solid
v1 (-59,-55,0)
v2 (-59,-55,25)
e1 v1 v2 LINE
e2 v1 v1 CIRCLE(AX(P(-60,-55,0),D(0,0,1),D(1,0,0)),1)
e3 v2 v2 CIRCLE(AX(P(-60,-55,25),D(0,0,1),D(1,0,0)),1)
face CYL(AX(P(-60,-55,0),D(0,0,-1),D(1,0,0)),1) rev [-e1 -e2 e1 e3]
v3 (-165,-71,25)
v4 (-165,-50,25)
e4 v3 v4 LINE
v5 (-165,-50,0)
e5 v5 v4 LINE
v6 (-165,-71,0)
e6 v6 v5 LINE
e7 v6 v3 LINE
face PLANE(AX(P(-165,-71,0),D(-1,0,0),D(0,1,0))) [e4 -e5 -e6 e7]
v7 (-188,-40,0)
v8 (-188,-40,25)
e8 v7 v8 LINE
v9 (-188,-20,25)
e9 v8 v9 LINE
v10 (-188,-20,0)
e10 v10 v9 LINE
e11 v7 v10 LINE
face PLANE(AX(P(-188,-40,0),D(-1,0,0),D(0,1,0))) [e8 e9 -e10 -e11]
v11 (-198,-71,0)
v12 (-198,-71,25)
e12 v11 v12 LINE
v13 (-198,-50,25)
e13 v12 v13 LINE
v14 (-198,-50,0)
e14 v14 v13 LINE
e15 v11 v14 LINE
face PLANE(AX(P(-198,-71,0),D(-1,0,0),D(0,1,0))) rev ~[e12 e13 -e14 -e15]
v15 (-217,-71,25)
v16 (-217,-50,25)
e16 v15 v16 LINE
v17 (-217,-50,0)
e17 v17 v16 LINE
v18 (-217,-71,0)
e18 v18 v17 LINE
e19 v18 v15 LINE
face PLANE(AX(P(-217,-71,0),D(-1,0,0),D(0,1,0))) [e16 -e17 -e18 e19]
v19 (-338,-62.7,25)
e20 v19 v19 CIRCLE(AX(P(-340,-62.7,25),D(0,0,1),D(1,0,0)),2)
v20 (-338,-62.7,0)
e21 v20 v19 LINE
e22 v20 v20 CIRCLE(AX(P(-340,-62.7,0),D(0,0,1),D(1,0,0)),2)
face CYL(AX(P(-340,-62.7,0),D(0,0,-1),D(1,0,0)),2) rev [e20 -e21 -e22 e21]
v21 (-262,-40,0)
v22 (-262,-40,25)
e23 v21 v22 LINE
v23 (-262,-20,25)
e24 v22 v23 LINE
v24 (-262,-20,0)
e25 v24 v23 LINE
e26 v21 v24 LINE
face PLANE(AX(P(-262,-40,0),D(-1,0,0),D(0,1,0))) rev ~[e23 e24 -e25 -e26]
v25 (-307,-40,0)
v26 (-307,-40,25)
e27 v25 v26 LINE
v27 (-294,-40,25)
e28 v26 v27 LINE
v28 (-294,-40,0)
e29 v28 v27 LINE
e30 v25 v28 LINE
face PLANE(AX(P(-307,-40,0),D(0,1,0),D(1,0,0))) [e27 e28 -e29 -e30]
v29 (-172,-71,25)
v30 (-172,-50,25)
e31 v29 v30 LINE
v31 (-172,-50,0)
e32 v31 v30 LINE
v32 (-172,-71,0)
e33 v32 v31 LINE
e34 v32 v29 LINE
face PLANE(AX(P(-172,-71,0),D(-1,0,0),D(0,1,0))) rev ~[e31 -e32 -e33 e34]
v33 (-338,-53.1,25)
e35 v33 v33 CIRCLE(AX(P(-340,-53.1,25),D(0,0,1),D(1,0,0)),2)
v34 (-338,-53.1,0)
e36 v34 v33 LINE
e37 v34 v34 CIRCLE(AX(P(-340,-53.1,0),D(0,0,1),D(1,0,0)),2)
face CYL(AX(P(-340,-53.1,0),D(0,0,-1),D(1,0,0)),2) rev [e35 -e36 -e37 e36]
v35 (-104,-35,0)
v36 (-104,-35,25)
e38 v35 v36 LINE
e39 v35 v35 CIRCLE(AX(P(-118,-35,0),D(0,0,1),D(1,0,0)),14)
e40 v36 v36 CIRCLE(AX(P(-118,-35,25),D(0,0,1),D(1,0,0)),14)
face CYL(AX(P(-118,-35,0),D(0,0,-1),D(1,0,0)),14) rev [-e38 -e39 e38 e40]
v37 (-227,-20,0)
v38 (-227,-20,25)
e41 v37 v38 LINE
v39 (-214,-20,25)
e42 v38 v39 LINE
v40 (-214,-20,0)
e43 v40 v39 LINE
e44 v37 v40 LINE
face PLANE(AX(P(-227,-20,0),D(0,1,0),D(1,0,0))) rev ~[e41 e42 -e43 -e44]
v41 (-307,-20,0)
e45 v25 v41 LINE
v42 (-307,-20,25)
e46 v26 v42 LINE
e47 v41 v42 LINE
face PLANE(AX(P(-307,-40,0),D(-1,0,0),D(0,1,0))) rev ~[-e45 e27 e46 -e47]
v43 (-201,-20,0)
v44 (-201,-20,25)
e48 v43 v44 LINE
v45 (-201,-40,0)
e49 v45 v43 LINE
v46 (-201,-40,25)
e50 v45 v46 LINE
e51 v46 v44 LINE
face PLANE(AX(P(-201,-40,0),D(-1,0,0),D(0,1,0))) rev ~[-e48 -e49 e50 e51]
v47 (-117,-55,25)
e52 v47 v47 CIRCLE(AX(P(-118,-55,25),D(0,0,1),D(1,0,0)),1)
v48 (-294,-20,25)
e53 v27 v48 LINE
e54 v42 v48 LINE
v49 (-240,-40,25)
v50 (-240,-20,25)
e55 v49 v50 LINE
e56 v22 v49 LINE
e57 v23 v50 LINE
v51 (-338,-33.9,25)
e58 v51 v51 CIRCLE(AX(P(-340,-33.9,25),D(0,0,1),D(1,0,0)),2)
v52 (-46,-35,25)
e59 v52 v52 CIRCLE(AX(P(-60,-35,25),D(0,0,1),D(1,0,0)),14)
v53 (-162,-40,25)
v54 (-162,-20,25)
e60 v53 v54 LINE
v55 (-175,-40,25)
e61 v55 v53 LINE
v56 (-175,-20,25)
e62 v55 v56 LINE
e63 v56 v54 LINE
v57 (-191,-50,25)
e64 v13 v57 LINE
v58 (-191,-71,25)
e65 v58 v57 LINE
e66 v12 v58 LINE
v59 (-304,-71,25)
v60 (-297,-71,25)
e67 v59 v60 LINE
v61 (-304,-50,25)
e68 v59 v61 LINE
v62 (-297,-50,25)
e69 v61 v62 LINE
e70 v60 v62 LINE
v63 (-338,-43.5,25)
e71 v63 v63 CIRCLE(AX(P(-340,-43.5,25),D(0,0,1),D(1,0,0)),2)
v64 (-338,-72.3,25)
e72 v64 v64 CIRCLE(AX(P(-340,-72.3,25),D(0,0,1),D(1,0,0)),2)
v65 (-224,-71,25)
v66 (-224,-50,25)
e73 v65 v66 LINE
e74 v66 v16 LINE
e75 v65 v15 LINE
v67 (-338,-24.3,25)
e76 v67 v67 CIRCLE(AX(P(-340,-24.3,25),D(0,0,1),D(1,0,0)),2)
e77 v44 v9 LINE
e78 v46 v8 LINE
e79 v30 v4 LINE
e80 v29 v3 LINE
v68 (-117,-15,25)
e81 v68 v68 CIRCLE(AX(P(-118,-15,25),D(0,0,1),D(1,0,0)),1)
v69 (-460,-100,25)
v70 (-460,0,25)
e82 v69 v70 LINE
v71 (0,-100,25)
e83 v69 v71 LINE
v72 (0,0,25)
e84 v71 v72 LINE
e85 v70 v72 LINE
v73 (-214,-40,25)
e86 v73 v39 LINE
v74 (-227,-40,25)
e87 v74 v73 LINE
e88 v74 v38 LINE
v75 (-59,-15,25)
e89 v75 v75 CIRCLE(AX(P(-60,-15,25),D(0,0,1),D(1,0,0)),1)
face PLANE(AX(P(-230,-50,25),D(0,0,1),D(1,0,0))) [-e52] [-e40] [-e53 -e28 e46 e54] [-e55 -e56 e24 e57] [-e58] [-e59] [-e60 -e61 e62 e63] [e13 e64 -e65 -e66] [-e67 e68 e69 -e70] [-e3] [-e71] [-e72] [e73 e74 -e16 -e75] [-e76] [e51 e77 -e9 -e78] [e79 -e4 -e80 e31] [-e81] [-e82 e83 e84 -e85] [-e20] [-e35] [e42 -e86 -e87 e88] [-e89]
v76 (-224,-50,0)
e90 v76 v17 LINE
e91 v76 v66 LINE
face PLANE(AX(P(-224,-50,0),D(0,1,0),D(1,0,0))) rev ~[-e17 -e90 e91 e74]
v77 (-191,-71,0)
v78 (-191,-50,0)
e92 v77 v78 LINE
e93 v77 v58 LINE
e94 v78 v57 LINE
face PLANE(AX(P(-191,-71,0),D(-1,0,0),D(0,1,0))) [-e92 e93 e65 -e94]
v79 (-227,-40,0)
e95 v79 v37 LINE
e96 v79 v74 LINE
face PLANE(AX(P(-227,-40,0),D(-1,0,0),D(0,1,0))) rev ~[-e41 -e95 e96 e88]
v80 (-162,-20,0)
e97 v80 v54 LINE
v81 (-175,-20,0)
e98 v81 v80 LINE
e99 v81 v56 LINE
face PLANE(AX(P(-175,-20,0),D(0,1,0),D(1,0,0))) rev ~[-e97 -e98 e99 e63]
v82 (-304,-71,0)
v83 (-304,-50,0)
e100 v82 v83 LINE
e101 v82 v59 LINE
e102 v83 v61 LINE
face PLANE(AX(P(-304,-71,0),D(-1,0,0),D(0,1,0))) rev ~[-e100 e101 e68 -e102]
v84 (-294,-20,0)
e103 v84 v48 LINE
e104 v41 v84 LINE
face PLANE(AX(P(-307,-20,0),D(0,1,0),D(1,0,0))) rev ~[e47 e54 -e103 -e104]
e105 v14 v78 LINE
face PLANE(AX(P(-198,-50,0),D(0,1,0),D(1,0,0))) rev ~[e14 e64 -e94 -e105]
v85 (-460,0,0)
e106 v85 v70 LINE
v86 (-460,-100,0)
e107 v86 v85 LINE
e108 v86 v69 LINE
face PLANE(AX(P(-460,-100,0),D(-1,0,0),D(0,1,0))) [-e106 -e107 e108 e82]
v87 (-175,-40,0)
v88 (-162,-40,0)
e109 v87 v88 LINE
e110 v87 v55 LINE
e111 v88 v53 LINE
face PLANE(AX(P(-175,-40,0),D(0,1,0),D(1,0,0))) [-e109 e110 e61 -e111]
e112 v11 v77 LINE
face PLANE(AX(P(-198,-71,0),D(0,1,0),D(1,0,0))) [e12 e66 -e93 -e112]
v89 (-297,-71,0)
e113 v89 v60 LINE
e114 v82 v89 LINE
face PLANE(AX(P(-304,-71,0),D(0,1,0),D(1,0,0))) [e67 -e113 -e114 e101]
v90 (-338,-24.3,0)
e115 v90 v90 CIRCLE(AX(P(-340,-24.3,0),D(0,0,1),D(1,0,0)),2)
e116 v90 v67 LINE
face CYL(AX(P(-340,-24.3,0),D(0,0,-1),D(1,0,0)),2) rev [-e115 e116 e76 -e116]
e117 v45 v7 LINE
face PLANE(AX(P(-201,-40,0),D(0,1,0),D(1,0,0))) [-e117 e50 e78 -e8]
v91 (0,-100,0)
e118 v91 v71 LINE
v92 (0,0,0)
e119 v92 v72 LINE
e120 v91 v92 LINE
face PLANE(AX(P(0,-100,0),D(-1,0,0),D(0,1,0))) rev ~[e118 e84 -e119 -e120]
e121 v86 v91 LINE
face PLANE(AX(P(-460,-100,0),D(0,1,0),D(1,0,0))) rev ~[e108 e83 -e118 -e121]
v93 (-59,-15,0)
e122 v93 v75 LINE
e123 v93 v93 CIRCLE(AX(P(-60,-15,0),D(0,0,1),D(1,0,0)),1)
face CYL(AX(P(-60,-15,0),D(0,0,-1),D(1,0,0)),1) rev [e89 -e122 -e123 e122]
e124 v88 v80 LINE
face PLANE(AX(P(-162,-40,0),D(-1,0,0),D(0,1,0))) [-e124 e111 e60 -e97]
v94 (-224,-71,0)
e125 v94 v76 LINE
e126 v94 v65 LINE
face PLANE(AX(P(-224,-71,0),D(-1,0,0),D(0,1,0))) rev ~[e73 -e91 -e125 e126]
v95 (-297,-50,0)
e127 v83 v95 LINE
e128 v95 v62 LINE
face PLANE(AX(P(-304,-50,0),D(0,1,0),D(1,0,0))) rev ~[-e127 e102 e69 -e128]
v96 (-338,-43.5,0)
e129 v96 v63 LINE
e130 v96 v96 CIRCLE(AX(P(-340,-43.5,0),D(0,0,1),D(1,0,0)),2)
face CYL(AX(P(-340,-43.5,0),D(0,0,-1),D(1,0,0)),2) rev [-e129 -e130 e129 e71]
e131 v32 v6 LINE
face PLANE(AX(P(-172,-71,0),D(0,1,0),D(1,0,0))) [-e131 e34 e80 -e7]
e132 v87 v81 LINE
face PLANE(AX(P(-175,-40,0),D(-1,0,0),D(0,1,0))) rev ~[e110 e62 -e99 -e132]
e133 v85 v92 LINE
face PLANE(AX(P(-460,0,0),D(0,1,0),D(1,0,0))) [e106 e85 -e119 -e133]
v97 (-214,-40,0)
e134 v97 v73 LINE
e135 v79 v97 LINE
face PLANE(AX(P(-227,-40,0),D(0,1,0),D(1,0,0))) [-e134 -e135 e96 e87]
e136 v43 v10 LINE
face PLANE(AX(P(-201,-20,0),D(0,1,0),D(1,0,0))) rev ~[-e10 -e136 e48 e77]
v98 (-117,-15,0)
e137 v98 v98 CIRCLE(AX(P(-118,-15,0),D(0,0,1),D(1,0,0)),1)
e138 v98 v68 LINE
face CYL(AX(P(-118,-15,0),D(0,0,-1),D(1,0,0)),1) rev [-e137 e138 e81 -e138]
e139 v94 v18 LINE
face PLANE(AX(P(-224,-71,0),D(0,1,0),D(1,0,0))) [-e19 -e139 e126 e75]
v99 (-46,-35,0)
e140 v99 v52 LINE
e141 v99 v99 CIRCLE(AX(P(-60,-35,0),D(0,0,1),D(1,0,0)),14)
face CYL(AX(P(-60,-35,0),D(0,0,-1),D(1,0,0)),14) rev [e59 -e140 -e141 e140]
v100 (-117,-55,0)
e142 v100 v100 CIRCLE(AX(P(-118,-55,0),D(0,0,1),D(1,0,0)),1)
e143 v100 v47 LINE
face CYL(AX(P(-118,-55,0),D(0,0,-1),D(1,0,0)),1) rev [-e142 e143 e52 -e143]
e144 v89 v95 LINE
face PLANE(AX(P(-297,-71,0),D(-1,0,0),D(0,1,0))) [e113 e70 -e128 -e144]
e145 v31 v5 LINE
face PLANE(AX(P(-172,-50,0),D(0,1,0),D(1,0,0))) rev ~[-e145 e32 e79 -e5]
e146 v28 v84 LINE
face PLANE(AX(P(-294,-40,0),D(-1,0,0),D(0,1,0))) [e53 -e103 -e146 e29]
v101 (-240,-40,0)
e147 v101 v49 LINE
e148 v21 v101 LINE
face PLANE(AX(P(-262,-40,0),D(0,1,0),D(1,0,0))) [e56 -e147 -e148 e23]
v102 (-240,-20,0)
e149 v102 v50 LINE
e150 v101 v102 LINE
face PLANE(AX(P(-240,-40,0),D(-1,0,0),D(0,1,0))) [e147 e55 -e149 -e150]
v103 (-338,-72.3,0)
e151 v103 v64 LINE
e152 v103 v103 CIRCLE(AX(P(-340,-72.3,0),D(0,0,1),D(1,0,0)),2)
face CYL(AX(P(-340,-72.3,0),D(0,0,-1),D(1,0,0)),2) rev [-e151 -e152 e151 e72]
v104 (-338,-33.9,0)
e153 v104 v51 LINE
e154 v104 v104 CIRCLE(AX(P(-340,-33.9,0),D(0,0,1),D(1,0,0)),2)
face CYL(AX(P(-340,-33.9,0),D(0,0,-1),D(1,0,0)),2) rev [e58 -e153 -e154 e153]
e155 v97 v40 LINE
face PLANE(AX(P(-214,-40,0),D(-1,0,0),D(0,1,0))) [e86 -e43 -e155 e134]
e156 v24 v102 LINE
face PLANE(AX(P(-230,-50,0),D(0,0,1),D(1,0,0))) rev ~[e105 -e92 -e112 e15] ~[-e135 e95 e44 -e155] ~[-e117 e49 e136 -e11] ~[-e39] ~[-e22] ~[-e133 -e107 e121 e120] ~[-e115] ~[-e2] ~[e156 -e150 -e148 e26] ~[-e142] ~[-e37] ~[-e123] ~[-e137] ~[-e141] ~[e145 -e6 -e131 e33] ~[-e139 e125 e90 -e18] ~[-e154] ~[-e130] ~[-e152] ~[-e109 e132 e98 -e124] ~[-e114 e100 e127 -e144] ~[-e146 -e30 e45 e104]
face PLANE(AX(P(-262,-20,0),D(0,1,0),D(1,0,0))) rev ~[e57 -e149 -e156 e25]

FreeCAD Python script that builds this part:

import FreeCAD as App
import Part
import Sketcher
from FreeCAD import Vector
Q = App.Units.Quantity


def add_polygon(sketch, points):
    """Adds a closed chain of lines whose ends are joined by coincident constraints."""
    first, n = sketch.GeometryCount, len(points)
    for a, b in zip(points, points[1:] + points[:1]):
        sketch.addGeometry(Part.LineSegment(App.Vector(*a, 0), App.Vector(*b, 0)), False)
    for i in range(n):
        sketch.addConstraint(Sketcher.Constraint("Coincident", first + i, 2, first + (i + 1) % n, 1))

doc = App.newDocument("Part")
body = doc.addObject("PartDesign::Body", "Body")

# Sketch on XY plane
sketch1 = body.newObject("Sketcher::SketchObject", "Sketch")
sketch1.AttachmentSupport = (doc.getObject("XY_Plane"), [""])
sketch1.MapMode = "FlatFace"
add_polygon(sketch1, [(-460, 0), (-460, -100), (0, -100), (0, 0)])  # lines 0-3
sketch1.addGeometry(Part.Circle(Vector(-340, -72.3, 0), Vector(0, 0, 1), 2), False)  # 4
sketch1.addGeometry(Part.Circle(Vector(-340, -62.7, 0), Vector(0, 0, 1), 2), False)  # 5
add_polygon(sketch1, [(-297, -71), (-304, -71), (-304, -50), (-297, -50)])  # lines 6-9
add_polygon(sketch1, [(-217, -71), (-224, -71), (-224, -50), (-217, -50)])  # lines 10-13
add_polygon(sketch1, [(-191, -71), (-198, -71), (-198, -50), (-191, -50)])  # lines 14-17
sketch1.addGeometry(Part.Circle(Vector(-340, -53.1, 0), Vector(0, 0, 1), 2), False)  # 18
add_polygon(sketch1, [(-165, -71), (-172, -71), (-172, -50), (-165, -50)])  # lines 19-22
sketch1.addGeometry(Part.Circle(Vector(-118, -55, 0), Vector(0, 0, 1), 1), False)  # 23
sketch1.addGeometry(Part.Circle(Vector(-60, -55, 0), Vector(0, 0, 1), 1), False)  # 24
sketch1.addGeometry(Part.Circle(Vector(-340, -43.5, 0), Vector(0, 0, 1), 2), False)  # 25
sketch1.addGeometry(Part.Circle(Vector(-340, -33.9, 0), Vector(0, 0, 1), 2), False)  # 26
add_polygon(sketch1, [(-294, -40), (-307, -40), (-307, -20), (-294, -20)])  # lines 27-30
add_polygon(sketch1, [(-240, -40), (-262, -40), (-262, -20), (-240, -20)])  # lines 31-34
add_polygon(sketch1, [(-214, -40), (-227, -40), (-227, -20), (-214, -20)])  # lines 35-38
add_polygon(sketch1, [(-188, -40), (-201, -40), (-201, -20), (-188, -20)])  # lines 39-42
sketch1.addGeometry(Part.Circle(Vector(-340, -24.3, 0), Vector(0, 0, 1), 2), False)  # 43
add_polygon(sketch1, [(-162, -40), (-175, -40), (-175, -20), (-162, -20)])  # lines 44-47
sketch1.addGeometry(Part.Circle(Vector(-118, -35, 0), Vector(0, 0, 1), 14), False)  # 48
sketch1.addGeometry(Part.Circle(Vector(-60, -35, 0), Vector(0, 0, 1), 14), False)  # 49
sketch1.addGeometry(Part.Circle(Vector(-118, -15, 0), Vector(0, 0, 1), 1), False)  # 50
sketch1.addGeometry(Part.Circle(Vector(-60, -15, 0), Vector(0, 0, 1), 1), False)  # 51
sketch1.addConstraint(Sketcher.Constraint("Vertical", 0))
sketch1.addConstraint(Sketcher.Constraint("Horizontal", 1))
sketch1.addConstraint(Sketcher.Constraint("Vertical", 2))
sketch1.addConstraint(Sketcher.Constraint("Horizontal", 3))
sketch1.addConstraint(Sketcher.Constraint("Horizontal", 6))
sketch1.addConstraint(Sketcher.Constraint("Vertical", 7))
sketch1.addConstraint(Sketcher.Constraint("Horizontal", 8))
sketch1.addConstraint(Sketcher.Constraint("Vertical", 9))
sketch1.addConstraint(Sketcher.Constraint("Horizontal", 10))
sketch1.addConstraint(Sketcher.Constraint("Vertical", 11))
sketch1.addConstraint(Sketcher.Constraint("Horizontal", 12))
sketch1.addConstraint(Sketcher.Constraint("Vertical", 13))
sketch1.addConstraint(Sketcher.Constraint("Horizontal", 14))
sketch1.addConstraint(Sketcher.Constraint("Vertical", 15))
sketch1.addConstraint(Sketcher.Constraint("Horizontal", 16))
sketch1.addConstraint(Sketcher.Constraint("Vertical", 17))
sketch1.addConstraint(Sketcher.Constraint("Horizontal", 19))
sketch1.addConstraint(Sketcher.Constraint("Vertical", 20))
sketch1.addConstraint(Sketcher.Constraint("Horizontal", 21))
sketch1.addConstraint(Sketcher.Constraint("Vertical", 22))
sketch1.addConstraint(Sketcher.Constraint("Horizontal", 27))
sketch1.addConstraint(Sketcher.Constraint("Vertical", 28))
sketch1.addConstraint(Sketcher.Constraint("Horizontal", 29))
sketch1.addConstraint(Sketcher.Constraint("Vertical", 30))
sketch1.addConstraint(Sketcher.Constraint("Horizontal", 31))
sketch1.addConstraint(Sketcher.Constraint("Vertical", 32))
sketch1.addConstraint(Sketcher.Constraint("Horizontal", 33))
sketch1.addConstraint(Sketcher.Constraint("Vertical", 34))
sketch1.addConstraint(Sketcher.Constraint("Horizontal", 35))
sketch1.addConstraint(Sketcher.Constraint("Vertical", 36))
sketch1.addConstraint(Sketcher.Constraint("Horizontal", 37))
sketch1.addConstraint(Sketcher.Constraint("Vertical", 38))
sketch1.addConstraint(Sketcher.Constraint("Horizontal", 39))
sketch1.addConstraint(Sketcher.Constraint("Vertical", 40))
sketch1.addConstraint(Sketcher.Constraint("Horizontal", 41))
sketch1.addConstraint(Sketcher.Constraint("Vertical", 42))
sketch1.addConstraint(Sketcher.Constraint("Horizontal", 44))
sketch1.addConstraint(Sketcher.Constraint("Vertical", 45))
sketch1.addConstraint(Sketcher.Constraint("Horizontal", 46))
sketch1.addConstraint(Sketcher.Constraint("Vertical", 47))
sketch1.addConstraint(Sketcher.Constraint("Coincident", 2, 2, -1, 1))
sketch1.addConstraint(Sketcher.Constraint("Equal", 4, 5))
sketch1.addConstraint(Sketcher.Constraint("Equal", 5, 18))
sketch1.addConstraint(Sketcher.Constraint("Equal", 23, 24))
sketch1.addConstraint(Sketcher.Constraint("Equal", 18, 25))
sketch1.addConstraint(Sketcher.Constraint("Equal", 25, 26))
sketch1.addConstraint(Sketcher.Constraint("Equal", 26, 43))
sketch1.addConstraint(Sketcher.Constraint("Equal", 48, 49))
sketch1.addConstraint(Sketcher.Constraint("Equal", 24, 50))
sketch1.addConstraint(Sketcher.Constraint("Equal", 50, 51))
sketch1.addConstraint(Sketcher.Constraint("Horizontal", 23, 3, 24, 3))
sketch1.addConstraint(Sketcher.Constraint("Horizontal", 48, 3, 49, 3))
sketch1.addConstraint(Sketcher.Constraint("Horizontal", 50, 3, 51, 3))
sketch1.addConstraint(Sketcher.Constraint("Horizontal", 9, 2, 10, 2))
sketch1.addConstraint(Sketcher.Constraint("Horizontal", 8, 2, 11, 2))
sketch1.addConstraint(Sketcher.Constraint("Horizontal", 13, 2, 14, 2))
sketch1.addConstraint(Sketcher.Constraint("Horizontal", 12, 2, 15, 2))
sketch1.addConstraint(Sketcher.Constraint("Horizontal", 17, 2, 19, 2))
sketch1.addConstraint(Sketcher.Constraint("Horizontal", 16, 2, 20, 2))
sketch1.addConstraint(Sketcher.Constraint("Horizontal", 30, 2, 31, 2))
sketch1.addConstraint(Sketcher.Constraint("Horizontal", 29, 2, 32, 2))
sketch1.addConstraint(Sketcher.Constraint("Horizontal", 34, 2, 35, 2))
sketch1.addConstraint(Sketcher.Constraint("Horizontal", 33, 2, 36, 2))
sketch1.addConstraint(Sketcher.Constraint("Horizontal", 38, 2, 39, 2))
sketch1.addConstraint(Sketcher.Constraint("Horizontal", 37, 2, 40, 2))
sketch1.addConstraint(Sketcher.Constraint("Horizontal", 42, 2, 44, 2))
sketch1.addConstraint(Sketcher.Constraint("Horizontal", 41, 2, 45, 2))
sketch1.addConstraint(Sketcher.Constraint("Vertical", 4, 3, 5, 3))
sketch1.addConstraint(Sketcher.Constraint("Vertical", 5, 3, 18, 3))
sketch1.addConstraint(Sketcher.Constraint("Vertical", 18, 3, 25, 3))
sketch1.addConstraint(Sketcher.Constraint("Vertical", 25, 3, 26, 3))
sketch1.addConstraint(Sketcher.Constraint("Vertical", 26, 3, 43, 3))
sketch1.addConstraint(Sketcher.Constraint("Vertical", 23, 3, 48, 3))
sketch1.addConstraint(Sketcher.Constraint("Vertical", 24, 3, 49, 3))
sketch1.addConstraint(Sketcher.Constraint("Vertical", 48, 3, 50, 3))
sketch1.addConstraint(Sketcher.Constraint("Vertical", 49, 3, 51, 3))
sketch1.addConstraint(Sketcher.Constraint("Equal", 8, 10))
sketch1.addConstraint(Sketcher.Constraint("Equal", 12, 14))
sketch1.addConstraint(Sketcher.Constraint("Equal", 16, 19))
sketch1.addConstraint(Sketcher.Constraint("Equal", 29, 35))
sketch1.addConstraint(Sketcher.Constraint("Equal", 37, 39))
sketch1.addConstraint(Sketcher.Constraint("Equal", 41, 44))
sketch1.addConstraint(Sketcher.Constraint("Diameter", 4, Q("4 mm")))
sketch1.addConstraint(Sketcher.Constraint("Diameter", 23, Q("2 mm")))
sketch1.addConstraint(Sketcher.Constraint("Diameter", 48, Q("28 mm")))
sketch1.addConstraint(Sketcher.Constraint("DistanceX", 1, 1, 1, 2, Q("460 mm")))
sketch1.addConstraint(Sketcher.Constraint("DistanceX", 6, 2, 6, 1, Q("7 mm")))
sketch1.addConstraint(Sketcher.Constraint("DistanceX", 27, 2, 27, 1, Q("13 mm")))
sketch1.addConstraint(Sketcher.Constraint("DistanceX", 31, 2, 31, 1, Q("22 mm")))
sketch1.addConstraint(Sketcher.Constraint("DistanceY", 0, 2, 0, 1, Q("100 mm")))
sketch1.addConstraint(Sketcher.Constraint("DistanceY", 7, 1, 7, 2, Q("21 mm")))
sketch1.addConstraint(Sketcher.Constraint("DistanceY", 28, 1, 28, 2, Q("20 mm")))
sketch1.addConstraint(Sketcher.Constraint("DistanceX", 4, 3, -1, 1, Q("340 mm")))
sketch1.addConstraint(Sketcher.Constraint("DistanceX", 23, 3, -1, 1, Q("118 mm")))
sketch1.addConstraint(Sketcher.Constraint("DistanceY", 23, 3, -1, 1, Q("55 mm")))
sketch1.addConstraint(Sketcher.Constraint("DistanceX", 24, 3, -1, 1, Q("60 mm")))
sketch1.addConstraint(Sketcher.Constraint("DistanceY", 48, 3, -1, 1, Q("35 mm")))
sketch1.addConstraint(Sketcher.Constraint("DistanceY", 50, 3, -1, 1, Q("15 mm")))
sketch1.addConstraint(Sketcher.Constraint("DistanceX", 6, 2, -1, 1, Q("304 mm")))
sketch1.addConstraint(Sketcher.Constraint("DistanceY", 6, 2, -1, 1, Q("71 mm")))
sketch1.addConstraint(Sketcher.Constraint("DistanceX", 10, 2, -1, 1, Q("224 mm")))
sketch1.addConstraint(Sketcher.Constraint("DistanceX", 14, 2, -1, 1, Q("198 mm")))
sketch1.addConstraint(Sketcher.Constraint("DistanceX", 19, 2, -1, 1, Q("172 mm")))
sketch1.addConstraint(Sketcher.Constraint("DistanceX", 27, 2, -1, 1, Q("307 mm")))
sketch1.addConstraint(Sketcher.Constraint("DistanceY", 27, 2, -1, 1, Q("40 mm")))
sketch1.addConstraint(Sketcher.Constraint("DistanceX", 31, 2, -1, 1, Q("262 mm")))
sketch1.addConstraint(Sketcher.Constraint("DistanceX", 35, 2, -1, 1, Q("227 mm")))
sketch1.addConstraint(Sketcher.Constraint("DistanceX", 39, 2, -1, 1, Q("201 mm")))
sketch1.addConstraint(Sketcher.Constraint("DistanceX", 44, 2, -1, 1, Q("175 mm")))
sketch1.addConstraint(Sketcher.Constraint("DistanceY", 4, 3, 43, 3, Q("48 mm")))
sketch1.addConstraint(Sketcher.Constraint("DistanceY", 4, 3, -1, 1, Q("72.3 mm")))
sketch1.addConstraint(Sketcher.Constraint("DistanceY", 5, 3, -1, 1, Q("62.7 mm")))
sketch1.addConstraint(Sketcher.Constraint("DistanceY", 18, 3, -1, 1, Q("53.1 mm")))
sketch1.addConstraint(Sketcher.Constraint("DistanceY", 25, 3, -1, 1, Q("43.5 mm")))
sketch1.addConstraint(Sketcher.Constraint("DistanceY", 26, 3, -1, 1, Q("33.9 mm")))
pad1 = body.newObject("PartDesign::Pad", "Pad")
pad1.Profile = sketch1
pad1.Length = 25

doc.recompute()
